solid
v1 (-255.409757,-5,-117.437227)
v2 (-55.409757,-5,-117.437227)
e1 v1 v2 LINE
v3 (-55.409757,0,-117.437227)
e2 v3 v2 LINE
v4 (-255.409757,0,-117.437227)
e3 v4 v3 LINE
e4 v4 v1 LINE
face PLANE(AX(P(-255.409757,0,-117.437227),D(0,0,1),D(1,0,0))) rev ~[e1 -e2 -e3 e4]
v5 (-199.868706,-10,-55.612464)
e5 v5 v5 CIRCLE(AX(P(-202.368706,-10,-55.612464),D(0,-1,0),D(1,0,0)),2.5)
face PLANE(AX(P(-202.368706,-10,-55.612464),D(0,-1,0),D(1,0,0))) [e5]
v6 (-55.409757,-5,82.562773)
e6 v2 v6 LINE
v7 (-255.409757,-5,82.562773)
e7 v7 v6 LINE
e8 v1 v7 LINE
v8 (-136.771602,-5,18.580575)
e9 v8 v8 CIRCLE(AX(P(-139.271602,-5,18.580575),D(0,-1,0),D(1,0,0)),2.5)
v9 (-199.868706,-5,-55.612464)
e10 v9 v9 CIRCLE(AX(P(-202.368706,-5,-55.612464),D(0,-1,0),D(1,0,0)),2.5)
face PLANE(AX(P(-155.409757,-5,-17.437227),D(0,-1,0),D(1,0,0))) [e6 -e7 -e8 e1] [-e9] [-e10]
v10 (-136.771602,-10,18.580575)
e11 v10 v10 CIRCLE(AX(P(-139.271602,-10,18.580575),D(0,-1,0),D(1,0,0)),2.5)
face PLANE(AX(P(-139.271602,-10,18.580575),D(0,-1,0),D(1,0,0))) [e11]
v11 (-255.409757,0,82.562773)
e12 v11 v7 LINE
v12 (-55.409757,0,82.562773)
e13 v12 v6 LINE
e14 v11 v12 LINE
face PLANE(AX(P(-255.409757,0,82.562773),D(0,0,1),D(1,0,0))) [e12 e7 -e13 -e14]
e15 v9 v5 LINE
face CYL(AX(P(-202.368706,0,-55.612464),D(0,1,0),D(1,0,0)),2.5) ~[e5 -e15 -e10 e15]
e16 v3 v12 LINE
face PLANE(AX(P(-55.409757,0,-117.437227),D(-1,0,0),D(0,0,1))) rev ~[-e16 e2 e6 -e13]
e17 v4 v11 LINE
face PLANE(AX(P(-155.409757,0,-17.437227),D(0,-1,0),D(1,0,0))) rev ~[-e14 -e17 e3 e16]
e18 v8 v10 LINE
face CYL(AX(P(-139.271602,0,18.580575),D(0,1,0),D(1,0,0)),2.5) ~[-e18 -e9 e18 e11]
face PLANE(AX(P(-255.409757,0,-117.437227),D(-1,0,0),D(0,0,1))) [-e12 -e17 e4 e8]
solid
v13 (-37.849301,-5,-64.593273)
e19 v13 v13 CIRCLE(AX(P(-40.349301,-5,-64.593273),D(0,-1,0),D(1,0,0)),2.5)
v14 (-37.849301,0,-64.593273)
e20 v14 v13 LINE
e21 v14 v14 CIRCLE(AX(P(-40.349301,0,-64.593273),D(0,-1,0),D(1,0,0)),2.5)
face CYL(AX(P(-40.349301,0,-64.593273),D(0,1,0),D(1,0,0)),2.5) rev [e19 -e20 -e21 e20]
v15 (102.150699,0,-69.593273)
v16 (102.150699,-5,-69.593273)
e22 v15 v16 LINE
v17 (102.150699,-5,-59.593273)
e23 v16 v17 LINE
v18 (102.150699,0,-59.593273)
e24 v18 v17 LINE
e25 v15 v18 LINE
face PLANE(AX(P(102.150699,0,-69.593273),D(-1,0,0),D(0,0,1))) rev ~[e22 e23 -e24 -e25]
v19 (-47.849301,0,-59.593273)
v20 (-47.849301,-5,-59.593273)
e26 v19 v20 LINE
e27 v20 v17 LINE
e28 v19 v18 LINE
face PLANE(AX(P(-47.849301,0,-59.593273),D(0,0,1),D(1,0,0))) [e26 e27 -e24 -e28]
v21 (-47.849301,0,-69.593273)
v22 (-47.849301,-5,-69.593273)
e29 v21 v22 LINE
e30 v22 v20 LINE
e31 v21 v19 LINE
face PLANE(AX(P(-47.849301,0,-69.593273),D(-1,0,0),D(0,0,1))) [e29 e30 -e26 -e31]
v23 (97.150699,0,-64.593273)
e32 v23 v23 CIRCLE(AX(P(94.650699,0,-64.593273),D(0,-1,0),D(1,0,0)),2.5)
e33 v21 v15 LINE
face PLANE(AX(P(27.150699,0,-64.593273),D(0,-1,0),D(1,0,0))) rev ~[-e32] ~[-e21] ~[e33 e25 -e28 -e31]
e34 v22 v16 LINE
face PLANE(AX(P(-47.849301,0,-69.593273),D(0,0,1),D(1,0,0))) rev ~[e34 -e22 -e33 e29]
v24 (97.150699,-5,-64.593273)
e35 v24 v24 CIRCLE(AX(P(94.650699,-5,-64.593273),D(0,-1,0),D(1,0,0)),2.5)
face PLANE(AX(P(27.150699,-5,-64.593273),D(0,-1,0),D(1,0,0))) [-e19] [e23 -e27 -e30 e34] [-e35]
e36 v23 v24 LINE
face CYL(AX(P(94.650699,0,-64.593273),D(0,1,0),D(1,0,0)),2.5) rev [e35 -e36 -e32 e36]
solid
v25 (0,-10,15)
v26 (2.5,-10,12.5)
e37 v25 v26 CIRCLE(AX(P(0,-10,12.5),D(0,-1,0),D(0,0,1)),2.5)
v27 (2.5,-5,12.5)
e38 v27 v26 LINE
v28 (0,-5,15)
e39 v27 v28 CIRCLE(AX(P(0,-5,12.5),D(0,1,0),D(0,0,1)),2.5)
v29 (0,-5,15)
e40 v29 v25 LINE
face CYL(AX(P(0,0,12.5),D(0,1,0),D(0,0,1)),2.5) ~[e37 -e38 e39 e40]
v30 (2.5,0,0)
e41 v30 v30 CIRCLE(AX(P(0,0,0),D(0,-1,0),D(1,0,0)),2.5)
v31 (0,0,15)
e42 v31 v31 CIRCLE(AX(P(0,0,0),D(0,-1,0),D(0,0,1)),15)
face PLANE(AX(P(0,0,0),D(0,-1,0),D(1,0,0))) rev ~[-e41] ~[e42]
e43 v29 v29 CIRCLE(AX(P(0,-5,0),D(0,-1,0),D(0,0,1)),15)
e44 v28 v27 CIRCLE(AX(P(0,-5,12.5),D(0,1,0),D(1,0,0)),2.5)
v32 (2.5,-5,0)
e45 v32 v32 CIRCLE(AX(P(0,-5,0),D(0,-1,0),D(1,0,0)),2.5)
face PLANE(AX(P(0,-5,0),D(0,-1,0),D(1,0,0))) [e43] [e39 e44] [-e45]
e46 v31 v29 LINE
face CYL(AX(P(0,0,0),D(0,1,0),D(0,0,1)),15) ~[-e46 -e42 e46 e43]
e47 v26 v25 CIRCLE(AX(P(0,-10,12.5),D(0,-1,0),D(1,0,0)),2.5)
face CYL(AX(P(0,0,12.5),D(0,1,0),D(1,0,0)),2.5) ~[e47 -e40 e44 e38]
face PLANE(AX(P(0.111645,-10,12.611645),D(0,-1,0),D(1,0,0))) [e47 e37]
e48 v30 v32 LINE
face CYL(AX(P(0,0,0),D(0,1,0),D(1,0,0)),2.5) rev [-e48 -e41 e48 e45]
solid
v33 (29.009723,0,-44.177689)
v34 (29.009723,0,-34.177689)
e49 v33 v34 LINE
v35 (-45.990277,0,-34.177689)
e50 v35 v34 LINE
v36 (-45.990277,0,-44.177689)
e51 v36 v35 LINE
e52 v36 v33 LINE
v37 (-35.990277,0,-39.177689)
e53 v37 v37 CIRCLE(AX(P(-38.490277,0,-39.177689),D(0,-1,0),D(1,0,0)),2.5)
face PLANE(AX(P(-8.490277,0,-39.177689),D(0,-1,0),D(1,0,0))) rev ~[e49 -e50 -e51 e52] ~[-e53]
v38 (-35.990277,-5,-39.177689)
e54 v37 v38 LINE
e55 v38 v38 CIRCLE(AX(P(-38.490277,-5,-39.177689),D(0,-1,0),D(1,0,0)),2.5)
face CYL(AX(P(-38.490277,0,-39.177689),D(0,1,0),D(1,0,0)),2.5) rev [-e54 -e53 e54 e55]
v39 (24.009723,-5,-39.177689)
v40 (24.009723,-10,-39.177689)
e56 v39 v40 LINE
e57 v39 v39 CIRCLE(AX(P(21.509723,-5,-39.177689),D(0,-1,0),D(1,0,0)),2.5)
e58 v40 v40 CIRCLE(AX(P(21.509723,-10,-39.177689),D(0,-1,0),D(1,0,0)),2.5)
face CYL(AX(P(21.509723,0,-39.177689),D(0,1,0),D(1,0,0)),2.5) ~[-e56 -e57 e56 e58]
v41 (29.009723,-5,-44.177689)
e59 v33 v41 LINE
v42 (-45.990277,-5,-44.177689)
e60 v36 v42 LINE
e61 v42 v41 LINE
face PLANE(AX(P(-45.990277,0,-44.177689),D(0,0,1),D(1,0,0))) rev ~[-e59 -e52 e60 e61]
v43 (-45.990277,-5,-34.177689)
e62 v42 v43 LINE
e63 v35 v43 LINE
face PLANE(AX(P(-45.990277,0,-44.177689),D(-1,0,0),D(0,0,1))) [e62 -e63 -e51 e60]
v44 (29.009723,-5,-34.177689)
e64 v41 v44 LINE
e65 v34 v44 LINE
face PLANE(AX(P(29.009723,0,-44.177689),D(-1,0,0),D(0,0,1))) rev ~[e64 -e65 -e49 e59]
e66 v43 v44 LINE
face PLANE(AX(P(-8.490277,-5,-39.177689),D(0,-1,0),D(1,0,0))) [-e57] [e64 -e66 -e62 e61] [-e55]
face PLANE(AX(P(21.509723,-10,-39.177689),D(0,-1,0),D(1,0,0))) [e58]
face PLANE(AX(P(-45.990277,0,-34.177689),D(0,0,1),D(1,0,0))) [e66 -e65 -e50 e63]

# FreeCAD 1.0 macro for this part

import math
import FreeCAD as App
import Part
import Sketcher
Q = App.Units.Quantity

doc = App.newDocument("Part")
body = doc.addObject("PartDesign::Body", "Body")

# Sketch on XZ plane
sketch1 = body.newObject("Sketcher::SketchObject", "Sketch")
sketch1.AttachmentSupport = (doc.getObject("XZ_Plane"), [""])
sketch1.MapMode = "FlatFace"
sketch1.addGeometry([
    Part.Circle(App.Vector(0, 0, 0), App.Vector(0, 0, 1), 15),
    Part.Circle(App.Vector(0, 0, 0), App.Vector(0, 0, 1), 2.5),
], False)
sketch1.addConstraint([
    Sketcher.Constraint("Coincident", 0, 3, -1, 1),
    Sketcher.Constraint("Coincident", 1, 3, -1, 1),
    Sketcher.Constraint("Diameter", 0, Q("30 mm")),
    Sketcher.Constraint("Diameter", 1, Q("5 mm")),
])
pad1 = body.newObject("PartDesign::Pad", "Pad")
pad1.Profile = sketch1
pad1.Length = 5

# Sketch on XZ plane
sketch2 = body.newObject("Sketcher::SketchObject", "Sketch001")
sketch2.AttachmentSupport = (doc.getObject("XZ_Plane"), [""])
sketch2.MapMode = "FlatFace"
sketch2.addGeometry([
    Part.ArcOfCircle(Part.Circle(App.Vector(0, 12.5, 0), App.Vector(0, 0, 1), 2.5), math.radians(0), math.radians(90)),
    Part.ArcOfCircle(Part.Circle(App.Vector(0, 12.5, 0), App.Vector(0, 0, 1), 2.5), math.radians(90), math.radians(360)),
], False)
sketch2.addConstraint([
    Sketcher.Constraint("Tangent", 0, 1, 1, 2),
    Sketcher.Constraint("Coincident", 1, 1, 0, 2),
    Sketcher.Constraint("PointOnObject", 0, 3, -2),
    Sketcher.Constraint("PointOnObject", 1, 1, -2),
    Sketcher.Constraint("Horizontal", 1, 3, 0, 1),
    Sketcher.Constraint("Radius", 0, Q("2.5 mm")),
    Sketcher.Constraint("DistanceY", -1, 1, 1, 1, Q("15 mm")),
])
pad2 = body.newObject("PartDesign::Pad", "Pad001")
pad2.Profile = sketch2
pad2.Length = 10
body2 = doc.addObject("PartDesign::Body", "Body001")

# Sketch on XZ plane
sketch3 = body2.newObject("Sketcher::SketchObject", "Sketch002")
sketch3.AttachmentSupport = (doc.getObject("XZ_Plane001"), [""])
sketch3.MapMode = "FlatFace"
sketch3.addGeometry([
    Part.LineSegment(App.Vector(-46, -34.2, 0), App.Vector(-46, -44.2, 0)),  # 0
    Part.LineSegment(App.Vector(-46, -44.2, 0), App.Vector(29, -44.2, 0)),  # 1
    Part.LineSegment(App.Vector(29, -44.2, 0), App.Vector(29, -34.2, 0)),  # 2
    Part.LineSegment(App.Vector(29, -34.2, 0), App.Vector(-46, -34.2, 0)),  # 3
    Part.Circle(App.Vector(-38.5, -39.2, 0), App.Vector(0, 0, 1), 2.5),  # 4
    Part.Circle(App.Vector(21.5, -39.2, 0), App.Vector(0, 0, 1), 2.5),  # 5
], False)
sketch3.addConstraint([
    Sketcher.Constraint("Coincident", 0, 2, 1, 1),
    Sketcher.Constraint("Coincident", 1, 2, 2, 1),
    Sketcher.Constraint("Coincident", 2, 2, 3, 1),
    Sketcher.Constraint("Coincident", 3, 2, 0, 1),
    Sketcher.Constraint("Vertical", 0),
    Sketcher.Constraint("Horizontal", 1),
    Sketcher.Constraint("Vertical", 2),
    Sketcher.Constraint("Horizontal", 3),
    Sketcher.Constraint("Equal", 4, 5),
    Sketcher.Constraint("Horizontal", 4, 3, 5, 3),
    Sketcher.Constraint("Diameter", 4, Q("5 mm")),
    Sketcher.Constraint("DistanceX", 1, 1, 1, 2, Q("75 mm")),
    Sketcher.Constraint("DistanceY", 0, 2, 0, 1, Q("10 mm")),
    Sketcher.Constraint("DistanceX", 4, 3, 5, 3, Q("60 mm")),
    Sketcher.Constraint("DistanceY", 0, 2, 4, 3, Q("5 mm")),
    Sketcher.Constraint("DistanceX", 0, 2, 4, 3, Q("7.5 mm")),
    Sketcher.Constraint("DistanceY", 4, 3, -1, 1, Q("39.177689 mm")),
    Sketcher.Constraint("DistanceX", 4, 3, -1, 1, Q("38.490277 mm")),
])
pad3 = body2.newObject("PartDesign::Pad", "Pad002")
pad3.Profile = sketch3
pad3.Length = 5

# Sketch on XZ plane
sketch4 = body2.newObject("Sketcher::SketchObject", "Sketch003")
sketch4.AttachmentSupport = (doc.getObject("XZ_Plane001"), [""])
sketch4.MapMode = "FlatFace"
sketch4.addGeometry(Part.Circle(App.Vector(21.5, -39.2, 0), App.Vector(0, 0, 1), 2.5), False)
sketch4.addConstraint([
    Sketcher.Constraint("Diameter", 0, Q("5 mm")),
    Sketcher.Constraint("DistanceY", 0, 3, -1, 1, Q("39.177689 mm")),
    Sketcher.Constraint("DistanceX", -1, 1, 0, 3, Q("21.509723 mm")),
])
pad4 = body2.newObject("PartDesign::Pad", "Pad003")
pad4.Profile = sketch4
pad4.Length = 10
body3 = doc.addObject("PartDesign::Body", "Body002")

# Sketch on XZ plane
sketch5 = body3.newObject("Sketcher::SketchObject", "Sketch004")
sketch5.AttachmentSupport = (doc.getObject("XZ_Plane002"), [""])
sketch5.MapMode = "FlatFace"
sketch5.addGeometry([
    Part.LineSegment(App.Vector(-47.8, -59.6, 0), App.Vector(-47.8, -69.6, 0)),  # 0
    Part.LineSegment(App.Vector(-47.8, -69.6, 0), App.Vector(102.2, -69.6, 0)),  # 1
    Part.LineSegment(App.Vector(102.2, -69.6, 0), App.Vector(102.2, -59.6, 0)),  # 2
    Part.LineSegment(App.Vector(102.2, -59.6, 0), App.Vector(-47.8, -59.6, 0)),  # 3
    Part.Circle(App.Vector(-40.3, -64.6, 0), App.Vector(0, 0, 1), 2.5),  # 4
    Part.Circle(App.Vector(94.7, -64.6, 0), App.Vector(0, 0, 1), 2.5),  # 5
], False)
sketch5.addConstraint([
    Sketcher.Constraint("Coincident", 0, 2, 1, 1),
    Sketcher.Constraint("Coincident", 1, 2, 2, 1),
    Sketcher.Constraint("Coincident", 2, 2, 3, 1),
    Sketcher.Constraint("Coincident", 3, 2, 0, 1),
    Sketcher.Constraint("Vertical", 0),
    Sketcher.Constraint("Horizontal", 1),
    Sketcher.Constraint("Vertical", 2),
    Sketcher.Constraint("Horizontal", 3),
    Sketcher.Constraint("Equal", 4, 5),
    Sketcher.Constraint("Horizontal", 4, 3, 5, 3),
    Sketcher.Constraint("Diameter", 4, Q("5 mm")),
    Sketcher.Constraint("DistanceX", 1, 1, 1, 2, Q("150 mm")),
    Sketcher.Constraint("DistanceY", 0, 2, 0, 1, Q("10 mm")),
    Sketcher.Constraint("DistanceX", 4, 3, 5, 3, Q("135 mm")),
    Sketcher.Constraint("DistanceY", 0, 2, 4, 3, Q("5 mm")),
    Sketcher.Constraint("DistanceX", 0, 2, 4, 3, Q("7.5 mm")),
    Sketcher.Constraint("DistanceX", 4, 3, -1, 1, Q("40.349301 mm")),
    Sketcher.Constraint("DistanceY", 4, 3, -1, 1, Q("64.593273 mm")),
])
pad5 = body3.newObject("PartDesign::Pad", "Pad004")
pad5.Profile = sketch5
pad5.Length = 5
body4 = doc.addObject("PartDesign::Body", "Body003")

# Sketch on XZ plane
sketch6 = body4.newObject("Sketcher::SketchObject", "Sketch005")
sketch6.AttachmentSupport = (doc.getObject("XZ_Plane003"), [""])
sketch6.MapMode = "FlatFace"
sketch6.addGeometry([
    Part.LineSegment(App.Vector(-255.4, 82.6, 0), App.Vector(-255.4, -117.4, 0)),  # 0
    Part.LineSegment(App.Vector(-255.4, -117.4, 0), App.Vector(-55.4, -117.4, 0)),  # 1
    Part.LineSegment(App.Vector(-55.4, -117.4, 0), App.Vector(-55.4, 82.6, 0)),  # 2
    Part.LineSegment(App.Vector(-55.4, 82.6, 0), App.Vector(-255.4, 82.6, 0)),  # 3
    Part.Circle(App.Vector(-202.4, -55.6, 0), App.Vector(0, 0, 1), 2.5),  # 4
    Part.Circle(App.Vector(-139.3, 18.6, 0), App.Vector(0, 0, 1), 2.5),  # 5
], False)
sketch6.addConstraint([
    Sketcher.Constraint("Coincident", 0, 2, 1, 1),
    Sketcher.Constraint("Coincident", 1, 2, 2, 1),
    Sketcher.Constraint("Coincident", 2, 2, 3, 1),
    Sketcher.Constraint("Coincident", 3, 2, 0, 1),
    Sketcher.Constraint("Vertical", 0),
    Sketcher.Constraint("Horizontal", 1),
    Sketcher.Constraint("Vertical", 2),
    Sketcher.Constraint("Horizontal", 3),
    Sketcher.Constraint("Equal", 4, 5),
    Sketcher.Constraint("Equal", 3, 0),
    Sketcher.Constraint("Diameter", 4, Q("5 mm")),
    Sketcher.Constraint("DistanceX", 1, 1, 1, 2, Q("200 mm")),
    Sketcher.Constraint("DistanceY", 0, 2, 5, 3, Q("136.017801 mm")),
    Sketcher.Constraint("DistanceY", 4, 3, 5, 3, Q("74.193038 mm")),
    Sketcher.Constraint("DistanceX", 0, 2, 4, 3, Q("53.041051 mm")),
    Sketcher.Constraint("DistanceX", 4, 3, -1, 1, Q("202.368706 mm")),
    Sketcher.Constraint("DistanceY", 4, 3, -1, 1, Q("55.612464 mm")),
    Sketcher.Constraint("DistanceX", 5, 3, -1, 1, Q("139.271602 mm")),
])
pad6 = body4.newObject("PartDesign::Pad", "Pad005")
pad6.Profile = sketch6
pad6.Length = 5

# Sketch on XZ plane
sketch7 = body4.newObject("Sketcher::SketchObject", "Sketch006")
sketch7.AttachmentSupport = (doc.getObject("XZ_Plane003"), [""])
sketch7.MapMode = "FlatFace"
sketch7.addGeometry(Part.Circle(App.Vector(-202.4, -55.6, 0), App.Vector(0, 0, 1), 2.5), False)
sketch7.addConstraint([
    Sketcher.Constraint("Diameter", 0, Q("5 mm")),
    Sketcher.Constraint("DistanceX", 0, 3, -1, 1, Q("202.368706 mm")),
    Sketcher.Constraint("DistanceY", 0, 3, -1, 1, Q("55.612464 mm")),
])
pad7 = body4.newObject("PartDesign::Pad", "Pad006")
pad7.Profile = sketch7
pad7.Length = 10

# Sketch on XZ plane
sketch8 = body4.newObject("Sketcher::SketchObject", "Sketch007")
sketch8.AttachmentSupport = (doc.getObject("XZ_Plane003"), [""])
sketch8.MapMode = "FlatFace"
sketch8.addGeometry(Part.Circle(App.Vector(-139.3, 18.6, 0), App.Vector(0, 0, 1), 2.5), False)
sketch8.addConstraint([
    Sketcher.Constraint("Diameter", 0, Q("5 mm")),
    Sketcher.Constraint("DistanceX", 0, 3, -1, 1, Q("139.271602 mm")),
    Sketcher.Constraint("DistanceY", -1, 1, 0, 3, Q("18.580575 mm")),
])
pad8 = body4.newObject("PartDesign::Pad", "Pad007")
pad8.Profile = sketch8
pad8.Length = 10

doc.recompute()
